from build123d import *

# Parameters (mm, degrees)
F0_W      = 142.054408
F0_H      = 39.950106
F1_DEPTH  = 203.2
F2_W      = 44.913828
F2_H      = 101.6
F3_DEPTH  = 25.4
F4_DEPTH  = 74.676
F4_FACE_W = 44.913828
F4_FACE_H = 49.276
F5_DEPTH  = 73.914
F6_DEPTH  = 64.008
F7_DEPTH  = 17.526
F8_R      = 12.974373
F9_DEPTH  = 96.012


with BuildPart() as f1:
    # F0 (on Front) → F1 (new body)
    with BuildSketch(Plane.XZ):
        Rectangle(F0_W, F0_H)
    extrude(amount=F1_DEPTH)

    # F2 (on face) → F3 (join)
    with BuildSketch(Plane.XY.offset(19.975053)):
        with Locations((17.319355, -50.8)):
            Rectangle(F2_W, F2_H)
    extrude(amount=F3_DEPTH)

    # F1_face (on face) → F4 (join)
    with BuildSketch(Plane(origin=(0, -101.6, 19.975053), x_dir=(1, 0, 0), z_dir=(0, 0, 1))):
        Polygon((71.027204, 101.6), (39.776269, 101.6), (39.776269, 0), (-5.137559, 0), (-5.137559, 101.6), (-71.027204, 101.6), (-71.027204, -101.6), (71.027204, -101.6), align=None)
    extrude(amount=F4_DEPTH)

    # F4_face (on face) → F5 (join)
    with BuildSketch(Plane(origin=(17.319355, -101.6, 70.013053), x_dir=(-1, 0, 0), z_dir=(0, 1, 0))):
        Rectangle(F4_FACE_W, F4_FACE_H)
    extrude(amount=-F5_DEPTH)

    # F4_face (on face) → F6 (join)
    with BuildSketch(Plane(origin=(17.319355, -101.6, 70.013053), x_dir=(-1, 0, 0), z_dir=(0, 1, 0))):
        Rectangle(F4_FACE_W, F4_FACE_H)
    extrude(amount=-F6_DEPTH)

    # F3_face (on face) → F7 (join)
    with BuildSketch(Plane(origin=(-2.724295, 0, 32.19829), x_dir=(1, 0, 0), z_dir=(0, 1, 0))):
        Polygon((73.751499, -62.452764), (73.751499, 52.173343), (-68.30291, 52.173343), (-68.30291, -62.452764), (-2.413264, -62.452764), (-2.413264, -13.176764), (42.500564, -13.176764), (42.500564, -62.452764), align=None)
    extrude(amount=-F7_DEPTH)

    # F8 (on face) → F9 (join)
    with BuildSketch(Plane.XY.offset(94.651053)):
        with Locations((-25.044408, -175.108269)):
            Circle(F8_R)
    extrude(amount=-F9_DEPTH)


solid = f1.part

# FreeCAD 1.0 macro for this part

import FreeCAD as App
import Part
import Sketcher
Q = App.Units.Quantity

doc = App.newDocument("Part")
body = doc.addObject("PartDesign::Body", "Body")

sketch1 = body.newObject("Sketcher::SketchObject", "Sketch")
sketch1.AttachmentSupport = (doc.getObject("XZ_Plane"), [""])
sketch1.MapMode = "FlatFace"
sketch1.addGeometry([
    Part.LineSegment(App.Vector(-71.027204, 19.975053, 0), App.Vector(-71.027204, -19.975053, 0)),
    Part.LineSegment(App.Vector(-71.027204, -19.975053, 0), App.Vector(71.027204, -19.975053, 0)),
    Part.LineSegment(App.Vector(71.027204, -19.975053, 0), App.Vector(71.027204, 19.975053, 0)),
    Part.LineSegment(App.Vector(71.027204, 19.975053, 0), App.Vector(-71.027204, 19.975053, 0)),
], False)
sketch1.addConstraint([
    Sketcher.Constraint("Coincident", 0, 2, 1, 1),
    Sketcher.Constraint("Coincident", 1, 2, 2, 1),
    Sketcher.Constraint("Coincident", 2, 2, 3, 1),
    Sketcher.Constraint("Coincident", 3, 2, 0, 1),
    Sketcher.Constraint("Vertical", 0),
    Sketcher.Constraint("Horizontal", 1),
    Sketcher.Constraint("Vertical", 2),
    Sketcher.Constraint("Horizontal", 3),
    Sketcher.Constraint("Symmetric", 0, 2, 2, 2, -1, 1),
    Sketcher.Constraint("DistanceX", 1, 1, 1, 2, Q("142.054408 mm")),
    Sketcher.Constraint("DistanceY", 0, 2, 0, 1, Q("39.950106 mm")),
])
pad1 = body.newObject("PartDesign::Pad", "Pad")
pad1.Profile = sketch1
pad1.Length = Q("8 in")

sketch2 = body.newObject("Sketcher::SketchObject", "Sketch001")
sketch2.AttachmentSupport = (doc.getObject("XY_Plane"), [""])
sketch2.MapMode = "FlatFace"
sketch2.AttachmentOffset = App.Placement(App.Vector(0, 0, 19.975053), App.Rotation())
sketch2.addGeometry([
    Part.LineSegment(App.Vector(-5.137559, 0, 0), App.Vector(-5.137559, -101.6, 0)),
    Part.LineSegment(App.Vector(-5.137559, -101.6, 0), App.Vector(39.776269, -101.6, 0)),
    Part.LineSegment(App.Vector(39.776269, -101.6, 0), App.Vector(39.776269, 0, 0)),
    Part.LineSegment(App.Vector(39.776269, 0, 0), App.Vector(-5.137559, 0, 0)),
], False)
sketch2.addConstraint([
    Sketcher.Constraint("Coincident", 0, 2, 1, 1),
    Sketcher.Constraint("Coincident", 1, 2, 2, 1),
    Sketcher.Constraint("Coincident", 2, 2, 3, 1),
    Sketcher.Constraint("Coincident", 3, 2, 0, 1),
    Sketcher.Constraint("Vertical", 0),
    Sketcher.Constraint("Horizontal", 1),
    Sketcher.Constraint("Vertical", 2),
    Sketcher.Constraint("Horizontal", 3),
    Sketcher.Constraint("PointOnObject", 2, 2, -1),
    Sketcher.Constraint("DistanceY", 0, 2, 0, 1, Q("4 in")),
    Sketcher.Constraint("DistanceX", 1, 1, 1, 2, Q("44.913828 mm")),
    Sketcher.Constraint("DistanceX", 0, 2, -1, 1, Q("5.137559 mm")),
])
pad2 = body.newObject("PartDesign::Pad", "Pad001")
pad2.Profile = sketch2
pad2.Length = Q("1 in")

sketch3 = body.newObject("Sketcher::SketchObject", "Sketch002")
sketch3.AttachmentSupport = (doc.getObject("XY_Plane"), [""])
sketch3.MapMode = "FlatFace"
sketch3.AttachmentOffset = App.Placement(App.Vector(0, 0, 19.975053), App.Rotation())
sketch3.addGeometry([
    Part.LineSegment(App.Vector(71.027204, 0, 0), App.Vector(39.776269, 0, 0)),
    Part.LineSegment(App.Vector(39.776269, 0, 0), App.Vector(39.776269, -101.6, 0)),
    Part.LineSegment(App.Vector(39.776269, -101.6, 0), App.Vector(-5.137559, -101.6, 0)),
    Part.LineSegment(App.Vector(-5.137559, -101.6, 0), App.Vector(-5.137559, 0, 0)),
    Part.LineSegment(App.Vector(-5.137559, 0, 0), App.Vector(-71.027204, 0, 0)),
    Part.LineSegment(App.Vector(-71.027204, 0, 0), App.Vector(-71.027204, -203.2, 0)),
    Part.LineSegment(App.Vector(-71.027204, -203.2, 0), App.Vector(71.027204, -203.2, 0)),
    Part.LineSegment(App.Vector(71.027204, -203.2, 0), App.Vector(71.027204, 0, 0)),
], False)
sketch3.addConstraint([
    Sketcher.Constraint("Coincident", 0, 2, 1, 1),
    Sketcher.Constraint("Coincident", 1, 2, 2, 1),
    Sketcher.Constraint("Coincident", 2, 2, 3, 1),
    Sketcher.Constraint("Coincident", 3, 2, 4, 1),
    Sketcher.Constraint("Coincident", 4, 2, 5, 1),
    Sketcher.Constraint("Coincident", 5, 2, 6, 1),
    Sketcher.Constraint("Coincident", 6, 2, 7, 1),
    Sketcher.Constraint("Coincident", 7, 2, 0, 1),
    Sketcher.Constraint("Horizontal", 0),
    Sketcher.Constraint("Vertical", 1),
    Sketcher.Constraint("Horizontal", 2),
    Sketcher.Constraint("Vertical", 3),
    Sketcher.Constraint("Horizontal", 4),
    Sketcher.Constraint("Vertical", 5),
    Sketcher.Constraint("Horizontal", 6),
    Sketcher.Constraint("Vertical", 7),
    Sketcher.Constraint("Symmetric", 4, 2, 7, 2, -1, 1),
    Sketcher.Constraint("PointOnObject", 0, 2, -1),
    Sketcher.Constraint("DistanceY", 1, 2, 1, 1, Q("4 in")),
    Sketcher.Constraint("DistanceY", 5, 2, 5, 1, Q("8 in")),
    Sketcher.Constraint("DistanceX", 2, 2, 2, 1, Q("44.913828 mm")),
    Sketcher.Constraint("DistanceX", 6, 1, 6, 2, Q("142.054408 mm")),
    Sketcher.Constraint("DistanceX", 0, 2, 0, 1, Q("31.250935 mm")),
])
pad3 = body.newObject("PartDesign::Pad", "Pad002")
pad3.Profile = sketch3
pad3.Length = Q("2.94 in")

sketch4 = body.newObject("Sketcher::SketchObject", "Sketch003")
sketch4.AttachmentSupport = (doc.getObject("XZ_Plane"), [""])
sketch4.MapMode = "FlatFace"
sketch4.AttachmentOffset = App.Placement(App.Vector(0, 0, 4 * 25.4), App.Rotation())
sketch4.addGeometry([
    Part.LineSegment(App.Vector(39.776269, 94.651053, 0), App.Vector(39.776269, 45.375053, 0)),
    Part.LineSegment(App.Vector(39.776269, 45.375053, 0), App.Vector(-5.137559, 45.375053, 0)),
    Part.LineSegment(App.Vector(-5.137559, 45.375053, 0), App.Vector(-5.137559, 94.651053, 0)),
    Part.LineSegment(App.Vector(-5.137559, 94.651053, 0), App.Vector(39.776269, 94.651053, 0)),
], False)
sketch4.addConstraint([
    Sketcher.Constraint("Coincident", 0, 2, 1, 1),
    Sketcher.Constraint("Coincident", 1, 2, 2, 1),
    Sketcher.Constraint("Coincident", 2, 2, 3, 1),
    Sketcher.Constraint("Coincident", 3, 2, 0, 1),
    Sketcher.Constraint("Vertical", 0),
    Sketcher.Constraint("Horizontal", 1),
    Sketcher.Constraint("Vertical", 2),
    Sketcher.Constraint("Horizontal", 3),
    Sketcher.Constraint("DistanceY", 0, 2, 0, 1, Q("1.94 in")),
    Sketcher.Constraint("DistanceX", 1, 2, 1, 1, Q("44.913828 mm")),
    Sketcher.Constraint("DistanceX", -1, 1, 0, 2, Q("39.776269 mm")),
    Sketcher.Constraint("DistanceY", -1, 1, 0, 2, Q("45.375053 mm")),
])
pad4 = body.newObject("PartDesign::Pad", "Pad003")
pad4.Profile = sketch4
pad4.Length = Q("2.91 in")

sketch5 = body.newObject("Sketcher::SketchObject", "Sketch004")
sketch5.AttachmentSupport = (doc.getObject("XZ_Plane"), [""])
sketch5.MapMode = "FlatFace"
sketch5.AttachmentOffset = App.Placement(App.Vector(0, 0, 4 * 25.4), App.Rotation())
sketch5.addGeometry([
    Part.LineSegment(App.Vector(39.776269, 94.651053, 0), App.Vector(39.776269, 45.375053, 0)),
    Part.LineSegment(App.Vector(39.776269, 45.375053, 0), App.Vector(-5.137559, 45.375053, 0)),
    Part.LineSegment(App.Vector(-5.137559, 45.375053, 0), App.Vector(-5.137559, 94.651053, 0)),
    Part.LineSegment(App.Vector(-5.137559, 94.651053, 0), App.Vector(39.776269, 94.651053, 0)),
], False)
sketch5.addConstraint([
    Sketcher.Constraint("Coincident", 0, 2, 1, 1),
    Sketcher.Constraint("Coincident", 1, 2, 2, 1),
    Sketcher.Constraint("Coincident", 2, 2, 3, 1),
    Sketcher.Constraint("Coincident", 3, 2, 0, 1),
    Sketcher.Constraint("Vertical", 0),
    Sketcher.Constraint("Horizontal", 1),
    Sketcher.Constraint("Vertical", 2),
    Sketcher.Constraint("Horizontal", 3),
    Sketcher.Constraint("DistanceY", 0, 2, 0, 1, Q("1.94 in")),
    Sketcher.Constraint("DistanceX", 1, 2, 1, 1, Q("44.913828 mm")),
    Sketcher.Constraint("DistanceX", -1, 1, 0, 2, Q("39.776269 mm")),
    Sketcher.Constraint("DistanceY", -1, 1, 0, 2, Q("45.375053 mm")),
])
pad5 = body.newObject("PartDesign::Pad", "Pad004")
pad5.Profile = sketch5
pad5.Length = Q("2.52 in")

sketch6 = body.newObject("Sketcher::SketchObject", "Sketch005")
sketch6.AttachmentSupport = (doc.getObject("XZ_Plane"), [""])
sketch6.MapMode = "FlatFace"
sketch6.addGeometry([
    Part.LineSegment(App.Vector(71.027204, 94.651054, 0), App.Vector(71.027204, -19.975053, 0)),
    Part.LineSegment(App.Vector(71.027204, -19.975053, 0), App.Vector(-71.027205, -19.975053, 0)),
    Part.LineSegment(App.Vector(-71.027205, -19.975053, 0), App.Vector(-71.027205, 94.651054, 0)),
    Part.LineSegment(App.Vector(-71.027205, 94.651054, 0), App.Vector(-5.137559, 94.651054, 0)),
    Part.LineSegment(App.Vector(-5.137559, 94.651054, 0), App.Vector(-5.137559, 45.375054, 0)),
    Part.LineSegment(App.Vector(-5.137559, 45.375054, 0), App.Vector(39.776269, 45.375054, 0)),
    Part.LineSegment(App.Vector(39.776269, 45.375054, 0), App.Vector(39.776269, 94.651054, 0)),
    Part.LineSegment(App.Vector(39.776269, 94.651054, 0), App.Vector(71.027204, 94.651054, 0)),
], False)
sketch6.addConstraint([
    Sketcher.Constraint("Coincident", 0, 2, 1, 1),
    Sketcher.Constraint("Coincident", 1, 2, 2, 1),
    Sketcher.Constraint("Coincident", 2, 2, 3, 1),
    Sketcher.Constraint("Coincident", 3, 2, 4, 1),
    Sketcher.Constraint("Coincident", 4, 2, 5, 1),
    Sketcher.Constraint("Coincident", 5, 2, 6, 1),
    Sketcher.Constraint("Coincident", 6, 2, 7, 1),
    Sketcher.Constraint("Coincident", 7, 2, 0, 1),
    Sketcher.Constraint("Vertical", 0),
    Sketcher.Constraint("Horizontal", 1),
    Sketcher.Constraint("Vertical", 2),
    Sketcher.Constraint("Horizontal", 3),
    Sketcher.Constraint("Vertical", 4),
    Sketcher.Constraint("Horizontal", 5),
    Sketcher.Constraint("Vertical", 6),
    Sketcher.Constraint("Horizontal", 7),
    Sketcher.Constraint("Symmetric", 2, 2, 7, 2, -2),
    Sketcher.Constraint("DistanceY", 4, 2, 4, 1, Q("1.94 in")),
    Sketcher.Constraint("DistanceX", 1, 2, 1, 1, Q("142.054409 mm")),
    Sketcher.Constraint("DistanceX", 5, 1, 5, 2, Q("44.913828 mm")),
    Sketcher.Constraint("DistanceX", 3, 1, 3, 2, Q("65.889646 mm")),
    Sketcher.Constraint("DistanceY", 0, 2, 0, 1, Q("114.626107 mm")),
    Sketcher.Constraint("DistanceY", 0, 2, -1, 1, Q("19.975053 mm")),
])
pad6 = body.newObject("PartDesign::Pad", "Pad005")
pad6.Profile = sketch6
pad6.Length = Q("0.69 in")

sketch7 = body.newObject("Sketcher::SketchObject", "Sketch006")
sketch7.AttachmentSupport = (doc.getObject("XY_Plane"), [""])
sketch7.MapMode = "FlatFace"
sketch7.AttachmentOffset = App.Placement(App.Vector(0, 0, 94.651053), App.Rotation())
sketch7.addGeometry(Part.Circle(App.Vector(-25.044408, -175.108269, 0), App.Vector(0, 0, 1), 12.974373), False)
sketch7.addConstraint([
    Sketcher.Constraint("Diameter", 0, Q("25.948746 mm")),
    Sketcher.Constraint("DistanceX", 0, 3, -1, 1, Q("25.044408 mm")),
    Sketcher.Constraint("DistanceY", 0, 3, -1, 1, Q("175.108269 mm")),
])
pad7 = body.newObject("PartDesign::Pad", "Pad006")
pad7.Profile = sketch7
pad7.Length = Q("3.78 in")
pad7.Reversed = True

doc.recompute()
